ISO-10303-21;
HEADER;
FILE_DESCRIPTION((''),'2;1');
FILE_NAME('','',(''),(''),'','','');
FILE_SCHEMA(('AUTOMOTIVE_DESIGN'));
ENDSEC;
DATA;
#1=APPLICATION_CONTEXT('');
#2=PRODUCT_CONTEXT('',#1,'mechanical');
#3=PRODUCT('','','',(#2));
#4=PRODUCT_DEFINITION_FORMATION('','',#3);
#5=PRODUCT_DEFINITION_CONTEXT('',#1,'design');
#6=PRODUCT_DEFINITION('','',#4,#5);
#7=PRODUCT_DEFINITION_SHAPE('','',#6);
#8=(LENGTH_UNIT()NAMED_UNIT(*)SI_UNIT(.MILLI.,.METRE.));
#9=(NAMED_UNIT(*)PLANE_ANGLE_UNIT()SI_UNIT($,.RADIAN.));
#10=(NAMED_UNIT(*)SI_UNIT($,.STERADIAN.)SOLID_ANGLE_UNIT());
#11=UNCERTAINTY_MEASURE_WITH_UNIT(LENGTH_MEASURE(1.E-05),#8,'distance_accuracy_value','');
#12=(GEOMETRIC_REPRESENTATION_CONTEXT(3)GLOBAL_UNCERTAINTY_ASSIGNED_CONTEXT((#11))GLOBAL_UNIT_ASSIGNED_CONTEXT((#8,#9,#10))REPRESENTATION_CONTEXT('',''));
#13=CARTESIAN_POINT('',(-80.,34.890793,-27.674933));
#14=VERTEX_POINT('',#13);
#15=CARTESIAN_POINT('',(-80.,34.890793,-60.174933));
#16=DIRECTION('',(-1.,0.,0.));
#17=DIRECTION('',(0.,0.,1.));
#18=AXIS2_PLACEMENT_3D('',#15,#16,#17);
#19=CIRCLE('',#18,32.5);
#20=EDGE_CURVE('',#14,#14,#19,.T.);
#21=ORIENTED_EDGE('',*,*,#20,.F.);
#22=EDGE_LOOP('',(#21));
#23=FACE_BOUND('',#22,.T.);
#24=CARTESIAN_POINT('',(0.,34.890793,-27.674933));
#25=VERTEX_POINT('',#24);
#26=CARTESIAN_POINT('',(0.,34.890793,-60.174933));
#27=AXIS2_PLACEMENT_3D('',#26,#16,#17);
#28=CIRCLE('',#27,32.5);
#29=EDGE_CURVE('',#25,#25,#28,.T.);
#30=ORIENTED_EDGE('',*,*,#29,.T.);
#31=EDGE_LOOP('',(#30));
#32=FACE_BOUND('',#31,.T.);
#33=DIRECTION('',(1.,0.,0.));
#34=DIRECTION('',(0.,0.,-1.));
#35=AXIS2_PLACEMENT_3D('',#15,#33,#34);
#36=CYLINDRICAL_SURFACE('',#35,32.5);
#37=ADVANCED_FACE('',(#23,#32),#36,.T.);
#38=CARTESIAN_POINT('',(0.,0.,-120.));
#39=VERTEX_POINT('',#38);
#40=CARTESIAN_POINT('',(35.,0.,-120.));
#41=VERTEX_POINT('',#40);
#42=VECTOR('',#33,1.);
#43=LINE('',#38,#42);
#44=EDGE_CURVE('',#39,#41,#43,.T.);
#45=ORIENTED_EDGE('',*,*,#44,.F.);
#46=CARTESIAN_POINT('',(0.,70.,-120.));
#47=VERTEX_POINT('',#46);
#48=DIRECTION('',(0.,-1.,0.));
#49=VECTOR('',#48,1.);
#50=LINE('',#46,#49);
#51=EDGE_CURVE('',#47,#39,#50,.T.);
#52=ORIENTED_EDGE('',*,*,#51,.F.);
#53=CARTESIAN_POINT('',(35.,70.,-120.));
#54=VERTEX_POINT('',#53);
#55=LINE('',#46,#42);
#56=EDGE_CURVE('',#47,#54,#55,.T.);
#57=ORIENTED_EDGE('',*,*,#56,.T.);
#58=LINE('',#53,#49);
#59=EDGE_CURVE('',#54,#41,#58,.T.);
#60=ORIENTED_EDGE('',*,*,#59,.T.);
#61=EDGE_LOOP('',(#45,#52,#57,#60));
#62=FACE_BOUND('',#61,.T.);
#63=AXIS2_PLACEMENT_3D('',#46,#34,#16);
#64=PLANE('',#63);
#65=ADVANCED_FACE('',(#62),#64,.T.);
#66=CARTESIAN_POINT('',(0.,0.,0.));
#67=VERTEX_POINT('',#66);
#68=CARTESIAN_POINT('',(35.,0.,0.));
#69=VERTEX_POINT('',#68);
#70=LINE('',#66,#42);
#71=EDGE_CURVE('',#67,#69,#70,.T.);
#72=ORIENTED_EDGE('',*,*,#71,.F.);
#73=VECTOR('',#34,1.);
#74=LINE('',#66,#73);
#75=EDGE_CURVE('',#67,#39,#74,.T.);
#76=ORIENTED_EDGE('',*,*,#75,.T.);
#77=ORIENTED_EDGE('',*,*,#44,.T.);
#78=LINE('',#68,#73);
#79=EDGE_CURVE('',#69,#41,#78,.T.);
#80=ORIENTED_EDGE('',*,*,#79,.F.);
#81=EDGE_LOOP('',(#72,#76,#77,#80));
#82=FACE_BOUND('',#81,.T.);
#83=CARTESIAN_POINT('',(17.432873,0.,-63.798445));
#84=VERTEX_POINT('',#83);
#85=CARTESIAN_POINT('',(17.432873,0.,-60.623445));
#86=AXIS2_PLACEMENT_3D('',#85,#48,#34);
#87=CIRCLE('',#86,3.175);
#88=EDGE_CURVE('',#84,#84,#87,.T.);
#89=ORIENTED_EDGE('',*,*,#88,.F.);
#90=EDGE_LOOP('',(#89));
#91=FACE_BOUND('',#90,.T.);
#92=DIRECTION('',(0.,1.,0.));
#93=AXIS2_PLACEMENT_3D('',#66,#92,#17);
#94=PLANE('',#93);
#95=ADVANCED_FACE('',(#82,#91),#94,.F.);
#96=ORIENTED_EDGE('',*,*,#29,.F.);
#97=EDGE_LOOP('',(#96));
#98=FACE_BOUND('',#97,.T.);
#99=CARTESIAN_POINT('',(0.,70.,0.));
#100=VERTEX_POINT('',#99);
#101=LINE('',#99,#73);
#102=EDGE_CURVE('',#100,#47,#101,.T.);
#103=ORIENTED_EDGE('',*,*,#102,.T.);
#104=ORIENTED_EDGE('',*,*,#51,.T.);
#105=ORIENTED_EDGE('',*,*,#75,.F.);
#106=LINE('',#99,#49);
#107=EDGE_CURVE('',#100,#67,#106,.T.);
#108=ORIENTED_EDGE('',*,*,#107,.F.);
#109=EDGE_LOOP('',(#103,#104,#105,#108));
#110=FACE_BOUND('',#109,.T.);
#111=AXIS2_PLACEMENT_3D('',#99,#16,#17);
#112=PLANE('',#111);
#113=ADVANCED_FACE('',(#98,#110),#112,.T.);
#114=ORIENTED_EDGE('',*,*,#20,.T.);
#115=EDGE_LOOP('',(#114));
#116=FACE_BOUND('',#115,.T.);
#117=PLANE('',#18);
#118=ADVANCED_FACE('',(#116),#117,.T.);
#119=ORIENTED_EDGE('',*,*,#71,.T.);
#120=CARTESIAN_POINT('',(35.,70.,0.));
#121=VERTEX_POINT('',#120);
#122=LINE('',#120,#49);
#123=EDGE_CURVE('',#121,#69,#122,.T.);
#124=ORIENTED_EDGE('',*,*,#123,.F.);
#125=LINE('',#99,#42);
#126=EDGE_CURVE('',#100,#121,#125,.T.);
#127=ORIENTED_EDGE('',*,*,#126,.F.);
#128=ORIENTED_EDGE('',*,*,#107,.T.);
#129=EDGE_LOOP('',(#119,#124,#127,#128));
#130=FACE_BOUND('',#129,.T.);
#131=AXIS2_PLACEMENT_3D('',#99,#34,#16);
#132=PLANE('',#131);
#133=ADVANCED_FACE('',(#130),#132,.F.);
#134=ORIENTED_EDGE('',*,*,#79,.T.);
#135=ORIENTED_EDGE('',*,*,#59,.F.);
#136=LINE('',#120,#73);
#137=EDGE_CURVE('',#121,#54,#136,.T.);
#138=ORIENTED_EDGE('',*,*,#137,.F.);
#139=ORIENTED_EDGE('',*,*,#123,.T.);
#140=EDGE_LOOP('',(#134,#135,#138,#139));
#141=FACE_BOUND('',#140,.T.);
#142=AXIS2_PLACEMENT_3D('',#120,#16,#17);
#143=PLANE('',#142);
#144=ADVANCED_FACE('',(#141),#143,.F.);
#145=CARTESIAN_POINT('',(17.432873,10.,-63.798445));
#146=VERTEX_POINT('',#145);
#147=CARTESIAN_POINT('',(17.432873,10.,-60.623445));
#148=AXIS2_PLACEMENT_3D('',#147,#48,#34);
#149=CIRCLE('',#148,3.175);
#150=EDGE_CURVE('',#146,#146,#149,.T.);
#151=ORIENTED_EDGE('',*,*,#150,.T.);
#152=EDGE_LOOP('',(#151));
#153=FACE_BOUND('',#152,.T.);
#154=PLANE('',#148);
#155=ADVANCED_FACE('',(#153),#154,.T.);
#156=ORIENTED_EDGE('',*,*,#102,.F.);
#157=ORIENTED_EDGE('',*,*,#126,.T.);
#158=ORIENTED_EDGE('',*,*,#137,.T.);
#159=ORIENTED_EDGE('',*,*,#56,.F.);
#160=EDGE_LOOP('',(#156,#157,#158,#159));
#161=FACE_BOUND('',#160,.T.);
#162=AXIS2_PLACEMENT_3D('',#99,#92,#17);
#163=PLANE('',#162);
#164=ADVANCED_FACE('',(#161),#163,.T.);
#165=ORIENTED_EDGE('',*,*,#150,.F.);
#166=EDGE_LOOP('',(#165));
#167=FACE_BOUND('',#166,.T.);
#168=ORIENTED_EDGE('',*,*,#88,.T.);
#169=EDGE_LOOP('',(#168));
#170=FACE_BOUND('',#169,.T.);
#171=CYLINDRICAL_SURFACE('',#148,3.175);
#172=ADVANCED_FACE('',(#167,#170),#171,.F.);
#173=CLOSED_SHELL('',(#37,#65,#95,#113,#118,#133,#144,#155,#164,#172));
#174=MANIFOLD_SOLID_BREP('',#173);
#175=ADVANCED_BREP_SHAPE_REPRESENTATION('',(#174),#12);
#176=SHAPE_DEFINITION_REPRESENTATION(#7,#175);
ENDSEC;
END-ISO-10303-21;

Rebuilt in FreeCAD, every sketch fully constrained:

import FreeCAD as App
import Part
import Sketcher

V = App.Vector
Q = App.Units.Quantity

doc = App.newDocument("Part")
body = doc.addObject("PartDesign::Body", "Body")

# Sketch on XZ plane
sketch1 = body.newObject("Sketcher::SketchObject", "Sketch")
sketch1.AttachmentSupport = (doc.getObject("XZ_Plane"), [""])
sketch1.MapMode = "FlatFace"
sketch1.addGeometry([
    Part.LineSegment(V(0, -120, 0), V(0, 0, 0)),
    Part.LineSegment(V(0, 0, 0), V(35, 0, 0)),
    Part.LineSegment(V(35, 0, 0), V(35, -120, 0)),
    Part.LineSegment(V(35, -120, 0), V(0, -120, 0)),
], False)
sketch1.addConstraint([
    Sketcher.Constraint("Coincident", 0, 2, 1, 1),
    Sketcher.Constraint("Coincident", 1, 2, 2, 1),
    Sketcher.Constraint("Coincident", 2, 2, 3, 1),
    Sketcher.Constraint("Coincident", 3, 2, 0, 1),
    Sketcher.Constraint("Vertical", 0),
    Sketcher.Constraint("Horizontal", 1),
    Sketcher.Constraint("Vertical", 2),
    Sketcher.Constraint("Horizontal", 3),
    Sketcher.Constraint("Coincident", 0, 2, -1, 1),
    Sketcher.Constraint("DistanceX", 1, 1, 1, 2, Q("35 mm")),
    Sketcher.Constraint("DistanceY", 0, 1, 0, 2, Q("120 mm")),
])
pad1 = body.newObject("PartDesign::Pad", "Pad")
pad1.Profile = sketch1
pad1.Length = 70
pad1.Reversed = True

# Sketch on YZ plane
sketch2 = body.newObject("Sketcher::SketchObject", "Sketch001")
sketch2.AttachmentSupport = (doc.getObject("YZ_Plane"), [""])
sketch2.MapMode = "FlatFace"
sketch2.addGeometry(Part.Circle(V(35, -60, 0), V(0, 0, 1), 32), False)
sketch2.addConstraint([
    Sketcher.Constraint("Diameter", 0, Q("65 mm")),
    Sketcher.Constraint("DistanceX", -1, 1, 0, 3, Q("34.890793 mm")),
    Sketcher.Constraint("DistanceY", 0, 3, -1, 1, Q("60.174933 mm")),
])
pad2 = body.newObject("PartDesign::Pad", "Pad001")
pad2.Profile = sketch2
pad2.Length = 80
pad2.Reversed = True

# Sketch on XZ plane
sketch3 = body.newObject("Sketcher::SketchObject", "Sketch002")
sketch3.AttachmentSupport = (doc.getObject("XZ_Plane"), [""])
sketch3.MapMode = "FlatFace"
sketch3.addGeometry(Part.Circle(V(17.4, -60.6, 0), V(0, 0, 1), 3.2), False)
sketch3.addConstraint([
    Sketcher.Constraint("Diameter", 0, Q("6.35 mm")),
    Sketcher.Constraint("DistanceX", -1, 1, 0, 3, Q("17.432873 mm")),
    Sketcher.Constraint("DistanceY", 0, 3, -1, 1, Q("60.623445 mm")),
])
pocket1 = body.newObject("PartDesign::Pocket", "Pocket")
pocket1.Profile = sketch3
pocket1.Length = 10

doc.recompute()
